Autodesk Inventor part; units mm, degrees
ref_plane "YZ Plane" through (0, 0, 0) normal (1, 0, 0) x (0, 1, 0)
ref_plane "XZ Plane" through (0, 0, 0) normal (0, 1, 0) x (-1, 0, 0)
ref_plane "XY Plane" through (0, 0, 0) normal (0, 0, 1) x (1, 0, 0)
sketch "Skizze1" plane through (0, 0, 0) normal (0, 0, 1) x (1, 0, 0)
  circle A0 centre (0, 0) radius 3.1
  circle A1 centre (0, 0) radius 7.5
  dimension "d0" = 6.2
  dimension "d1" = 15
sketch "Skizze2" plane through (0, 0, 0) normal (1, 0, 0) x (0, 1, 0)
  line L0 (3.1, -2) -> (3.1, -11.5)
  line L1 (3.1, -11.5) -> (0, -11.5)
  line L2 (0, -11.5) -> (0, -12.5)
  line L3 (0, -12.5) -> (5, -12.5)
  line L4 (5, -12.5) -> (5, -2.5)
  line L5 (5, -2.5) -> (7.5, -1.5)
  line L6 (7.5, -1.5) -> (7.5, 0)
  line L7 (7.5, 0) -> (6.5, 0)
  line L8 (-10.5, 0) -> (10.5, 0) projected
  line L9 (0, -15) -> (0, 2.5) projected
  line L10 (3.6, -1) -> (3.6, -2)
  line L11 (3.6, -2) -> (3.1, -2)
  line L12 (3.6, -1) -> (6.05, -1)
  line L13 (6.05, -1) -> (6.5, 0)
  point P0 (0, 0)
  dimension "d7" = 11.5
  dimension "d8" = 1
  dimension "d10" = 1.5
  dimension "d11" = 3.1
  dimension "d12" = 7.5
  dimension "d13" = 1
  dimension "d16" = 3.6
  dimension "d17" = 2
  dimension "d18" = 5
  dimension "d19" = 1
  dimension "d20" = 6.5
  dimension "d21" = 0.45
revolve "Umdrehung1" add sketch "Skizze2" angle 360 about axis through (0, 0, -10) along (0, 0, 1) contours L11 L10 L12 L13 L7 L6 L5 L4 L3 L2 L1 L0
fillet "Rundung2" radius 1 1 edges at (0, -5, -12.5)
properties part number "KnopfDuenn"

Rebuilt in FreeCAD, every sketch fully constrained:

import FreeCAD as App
import Part
import Sketcher

V = App.Vector


def edges_at(feature, points):
    """Names of the edges that pass closest to the given points."""
    edges = feature.Shape.Edges
    near = lambda p: min(range(len(edges)), key=lambda i: edges[i].distToShape(Part.Vertex(*p))[0])
    return sorted({f"Edge{near(p) + 1}" for p in points})


def add_polygon(sketch, points):
    """Adds a closed chain of lines whose ends are joined by coincident constraints."""
    first, n = sketch.GeometryCount, len(points)
    for a, b in zip(points, points[1:] + points[:1]):
        sketch.addGeometry(Part.LineSegment(App.Vector(*a, 0), App.Vector(*b, 0)), False)
    for i in range(n):
        sketch.addConstraint(Sketcher.Constraint("Coincident", first + i, 2, first + (i + 1) % n, 1))

doc = App.newDocument("Part")
body = doc.addObject("PartDesign::Body", "Body")

# Sketch on YZ plane
sketch1 = body.newObject("Sketcher::SketchObject", "Sketch")
sketch1.AttachmentSupport = (doc.getObject("YZ_Plane"), [""])
sketch1.MapMode = "FlatFace"
add_polygon(sketch1, [(3.6, -2), (3.1, -2), (3.1, -11.5), (0, -11.5), (0, -12.5), (5, -12.5), (5, -2.5), (7.5, -1.5), (7.5, 0), (6.5, 0), (6.05, -1), (3.6, -1)])  # lines 0-11
sketch1.addConstraint(Sketcher.Constraint("Horizontal", 0))
sketch1.addConstraint(Sketcher.Constraint("Vertical", 1))
sketch1.addConstraint(Sketcher.Constraint("Horizontal", 2))
sketch1.addConstraint(Sketcher.Constraint("Vertical", 3))
sketch1.addConstraint(Sketcher.Constraint("Horizontal", 4))
sketch1.addConstraint(Sketcher.Constraint("Vertical", 5))
sketch1.addConstraint(Sketcher.Constraint("Vertical", 7))
sketch1.addConstraint(Sketcher.Constraint("Horizontal", 8))
sketch1.addConstraint(Sketcher.Constraint("Horizontal", 10))
sketch1.addConstraint(Sketcher.Constraint("Vertical", 11))
sketch1.addConstraint(Sketcher.Constraint("PointOnObject", 2, 2, -2))
sketch1.addConstraint(Sketcher.Constraint("PointOnObject", 7, 2, -1))
sketch1.addConstraint(Sketcher.Constraint("Equal", 8, 3))
sketch1.addConstraint(Sketcher.Constraint("Equal", 3, 11))
sketch1.addConstraint(Sketcher.Constraint("DistanceX", 4, 1, 4, 2, 5.0))
sketch1.addConstraint(Sketcher.Constraint("DistanceX", 8, 2, 8, 1, 1.0))
sketch1.addConstraint(Sketcher.Constraint("DistanceX", 2, 2, 2, 1, 3.1))
sketch1.addConstraint(Sketcher.Constraint("DistanceY", 7, 1, 7, 2, 1.5))
sketch1.addConstraint(Sketcher.Constraint("DistanceY", 0, 2, -1, 1, 2.0))
sketch1.addConstraint(Sketcher.Constraint("DistanceY", 5, 2, 6, 2, 1.0))
sketch1.addConstraint(Sketcher.Constraint("DistanceY", 1, 2, -1, 1, 11.5))
sketch1.addConstraint(Sketcher.Constraint("DistanceX", -1, 1, 6, 2, 7.5))
sketch1.addConstraint(Sketcher.Constraint("DistanceX", -1, 1, 10, 2, 3.6))
sketch1.addConstraint(Sketcher.Constraint("DistanceX", 9, 2, 8, 2, 0.45))
revolution = body.newObject("PartDesign::Revolution", "Revolution")
revolution.Profile = sketch1
revolution.ReferenceAxis = (sketch1, ["V_Axis"])
revolution.Angle = 360
doc.recompute()

fillet = body.newObject("PartDesign::Fillet", "Fillet")
fillet.Base = (revolution, edges_at(revolution, [(0, -5, -12.5)]))
fillet.Radius = 1

doc.recompute()
